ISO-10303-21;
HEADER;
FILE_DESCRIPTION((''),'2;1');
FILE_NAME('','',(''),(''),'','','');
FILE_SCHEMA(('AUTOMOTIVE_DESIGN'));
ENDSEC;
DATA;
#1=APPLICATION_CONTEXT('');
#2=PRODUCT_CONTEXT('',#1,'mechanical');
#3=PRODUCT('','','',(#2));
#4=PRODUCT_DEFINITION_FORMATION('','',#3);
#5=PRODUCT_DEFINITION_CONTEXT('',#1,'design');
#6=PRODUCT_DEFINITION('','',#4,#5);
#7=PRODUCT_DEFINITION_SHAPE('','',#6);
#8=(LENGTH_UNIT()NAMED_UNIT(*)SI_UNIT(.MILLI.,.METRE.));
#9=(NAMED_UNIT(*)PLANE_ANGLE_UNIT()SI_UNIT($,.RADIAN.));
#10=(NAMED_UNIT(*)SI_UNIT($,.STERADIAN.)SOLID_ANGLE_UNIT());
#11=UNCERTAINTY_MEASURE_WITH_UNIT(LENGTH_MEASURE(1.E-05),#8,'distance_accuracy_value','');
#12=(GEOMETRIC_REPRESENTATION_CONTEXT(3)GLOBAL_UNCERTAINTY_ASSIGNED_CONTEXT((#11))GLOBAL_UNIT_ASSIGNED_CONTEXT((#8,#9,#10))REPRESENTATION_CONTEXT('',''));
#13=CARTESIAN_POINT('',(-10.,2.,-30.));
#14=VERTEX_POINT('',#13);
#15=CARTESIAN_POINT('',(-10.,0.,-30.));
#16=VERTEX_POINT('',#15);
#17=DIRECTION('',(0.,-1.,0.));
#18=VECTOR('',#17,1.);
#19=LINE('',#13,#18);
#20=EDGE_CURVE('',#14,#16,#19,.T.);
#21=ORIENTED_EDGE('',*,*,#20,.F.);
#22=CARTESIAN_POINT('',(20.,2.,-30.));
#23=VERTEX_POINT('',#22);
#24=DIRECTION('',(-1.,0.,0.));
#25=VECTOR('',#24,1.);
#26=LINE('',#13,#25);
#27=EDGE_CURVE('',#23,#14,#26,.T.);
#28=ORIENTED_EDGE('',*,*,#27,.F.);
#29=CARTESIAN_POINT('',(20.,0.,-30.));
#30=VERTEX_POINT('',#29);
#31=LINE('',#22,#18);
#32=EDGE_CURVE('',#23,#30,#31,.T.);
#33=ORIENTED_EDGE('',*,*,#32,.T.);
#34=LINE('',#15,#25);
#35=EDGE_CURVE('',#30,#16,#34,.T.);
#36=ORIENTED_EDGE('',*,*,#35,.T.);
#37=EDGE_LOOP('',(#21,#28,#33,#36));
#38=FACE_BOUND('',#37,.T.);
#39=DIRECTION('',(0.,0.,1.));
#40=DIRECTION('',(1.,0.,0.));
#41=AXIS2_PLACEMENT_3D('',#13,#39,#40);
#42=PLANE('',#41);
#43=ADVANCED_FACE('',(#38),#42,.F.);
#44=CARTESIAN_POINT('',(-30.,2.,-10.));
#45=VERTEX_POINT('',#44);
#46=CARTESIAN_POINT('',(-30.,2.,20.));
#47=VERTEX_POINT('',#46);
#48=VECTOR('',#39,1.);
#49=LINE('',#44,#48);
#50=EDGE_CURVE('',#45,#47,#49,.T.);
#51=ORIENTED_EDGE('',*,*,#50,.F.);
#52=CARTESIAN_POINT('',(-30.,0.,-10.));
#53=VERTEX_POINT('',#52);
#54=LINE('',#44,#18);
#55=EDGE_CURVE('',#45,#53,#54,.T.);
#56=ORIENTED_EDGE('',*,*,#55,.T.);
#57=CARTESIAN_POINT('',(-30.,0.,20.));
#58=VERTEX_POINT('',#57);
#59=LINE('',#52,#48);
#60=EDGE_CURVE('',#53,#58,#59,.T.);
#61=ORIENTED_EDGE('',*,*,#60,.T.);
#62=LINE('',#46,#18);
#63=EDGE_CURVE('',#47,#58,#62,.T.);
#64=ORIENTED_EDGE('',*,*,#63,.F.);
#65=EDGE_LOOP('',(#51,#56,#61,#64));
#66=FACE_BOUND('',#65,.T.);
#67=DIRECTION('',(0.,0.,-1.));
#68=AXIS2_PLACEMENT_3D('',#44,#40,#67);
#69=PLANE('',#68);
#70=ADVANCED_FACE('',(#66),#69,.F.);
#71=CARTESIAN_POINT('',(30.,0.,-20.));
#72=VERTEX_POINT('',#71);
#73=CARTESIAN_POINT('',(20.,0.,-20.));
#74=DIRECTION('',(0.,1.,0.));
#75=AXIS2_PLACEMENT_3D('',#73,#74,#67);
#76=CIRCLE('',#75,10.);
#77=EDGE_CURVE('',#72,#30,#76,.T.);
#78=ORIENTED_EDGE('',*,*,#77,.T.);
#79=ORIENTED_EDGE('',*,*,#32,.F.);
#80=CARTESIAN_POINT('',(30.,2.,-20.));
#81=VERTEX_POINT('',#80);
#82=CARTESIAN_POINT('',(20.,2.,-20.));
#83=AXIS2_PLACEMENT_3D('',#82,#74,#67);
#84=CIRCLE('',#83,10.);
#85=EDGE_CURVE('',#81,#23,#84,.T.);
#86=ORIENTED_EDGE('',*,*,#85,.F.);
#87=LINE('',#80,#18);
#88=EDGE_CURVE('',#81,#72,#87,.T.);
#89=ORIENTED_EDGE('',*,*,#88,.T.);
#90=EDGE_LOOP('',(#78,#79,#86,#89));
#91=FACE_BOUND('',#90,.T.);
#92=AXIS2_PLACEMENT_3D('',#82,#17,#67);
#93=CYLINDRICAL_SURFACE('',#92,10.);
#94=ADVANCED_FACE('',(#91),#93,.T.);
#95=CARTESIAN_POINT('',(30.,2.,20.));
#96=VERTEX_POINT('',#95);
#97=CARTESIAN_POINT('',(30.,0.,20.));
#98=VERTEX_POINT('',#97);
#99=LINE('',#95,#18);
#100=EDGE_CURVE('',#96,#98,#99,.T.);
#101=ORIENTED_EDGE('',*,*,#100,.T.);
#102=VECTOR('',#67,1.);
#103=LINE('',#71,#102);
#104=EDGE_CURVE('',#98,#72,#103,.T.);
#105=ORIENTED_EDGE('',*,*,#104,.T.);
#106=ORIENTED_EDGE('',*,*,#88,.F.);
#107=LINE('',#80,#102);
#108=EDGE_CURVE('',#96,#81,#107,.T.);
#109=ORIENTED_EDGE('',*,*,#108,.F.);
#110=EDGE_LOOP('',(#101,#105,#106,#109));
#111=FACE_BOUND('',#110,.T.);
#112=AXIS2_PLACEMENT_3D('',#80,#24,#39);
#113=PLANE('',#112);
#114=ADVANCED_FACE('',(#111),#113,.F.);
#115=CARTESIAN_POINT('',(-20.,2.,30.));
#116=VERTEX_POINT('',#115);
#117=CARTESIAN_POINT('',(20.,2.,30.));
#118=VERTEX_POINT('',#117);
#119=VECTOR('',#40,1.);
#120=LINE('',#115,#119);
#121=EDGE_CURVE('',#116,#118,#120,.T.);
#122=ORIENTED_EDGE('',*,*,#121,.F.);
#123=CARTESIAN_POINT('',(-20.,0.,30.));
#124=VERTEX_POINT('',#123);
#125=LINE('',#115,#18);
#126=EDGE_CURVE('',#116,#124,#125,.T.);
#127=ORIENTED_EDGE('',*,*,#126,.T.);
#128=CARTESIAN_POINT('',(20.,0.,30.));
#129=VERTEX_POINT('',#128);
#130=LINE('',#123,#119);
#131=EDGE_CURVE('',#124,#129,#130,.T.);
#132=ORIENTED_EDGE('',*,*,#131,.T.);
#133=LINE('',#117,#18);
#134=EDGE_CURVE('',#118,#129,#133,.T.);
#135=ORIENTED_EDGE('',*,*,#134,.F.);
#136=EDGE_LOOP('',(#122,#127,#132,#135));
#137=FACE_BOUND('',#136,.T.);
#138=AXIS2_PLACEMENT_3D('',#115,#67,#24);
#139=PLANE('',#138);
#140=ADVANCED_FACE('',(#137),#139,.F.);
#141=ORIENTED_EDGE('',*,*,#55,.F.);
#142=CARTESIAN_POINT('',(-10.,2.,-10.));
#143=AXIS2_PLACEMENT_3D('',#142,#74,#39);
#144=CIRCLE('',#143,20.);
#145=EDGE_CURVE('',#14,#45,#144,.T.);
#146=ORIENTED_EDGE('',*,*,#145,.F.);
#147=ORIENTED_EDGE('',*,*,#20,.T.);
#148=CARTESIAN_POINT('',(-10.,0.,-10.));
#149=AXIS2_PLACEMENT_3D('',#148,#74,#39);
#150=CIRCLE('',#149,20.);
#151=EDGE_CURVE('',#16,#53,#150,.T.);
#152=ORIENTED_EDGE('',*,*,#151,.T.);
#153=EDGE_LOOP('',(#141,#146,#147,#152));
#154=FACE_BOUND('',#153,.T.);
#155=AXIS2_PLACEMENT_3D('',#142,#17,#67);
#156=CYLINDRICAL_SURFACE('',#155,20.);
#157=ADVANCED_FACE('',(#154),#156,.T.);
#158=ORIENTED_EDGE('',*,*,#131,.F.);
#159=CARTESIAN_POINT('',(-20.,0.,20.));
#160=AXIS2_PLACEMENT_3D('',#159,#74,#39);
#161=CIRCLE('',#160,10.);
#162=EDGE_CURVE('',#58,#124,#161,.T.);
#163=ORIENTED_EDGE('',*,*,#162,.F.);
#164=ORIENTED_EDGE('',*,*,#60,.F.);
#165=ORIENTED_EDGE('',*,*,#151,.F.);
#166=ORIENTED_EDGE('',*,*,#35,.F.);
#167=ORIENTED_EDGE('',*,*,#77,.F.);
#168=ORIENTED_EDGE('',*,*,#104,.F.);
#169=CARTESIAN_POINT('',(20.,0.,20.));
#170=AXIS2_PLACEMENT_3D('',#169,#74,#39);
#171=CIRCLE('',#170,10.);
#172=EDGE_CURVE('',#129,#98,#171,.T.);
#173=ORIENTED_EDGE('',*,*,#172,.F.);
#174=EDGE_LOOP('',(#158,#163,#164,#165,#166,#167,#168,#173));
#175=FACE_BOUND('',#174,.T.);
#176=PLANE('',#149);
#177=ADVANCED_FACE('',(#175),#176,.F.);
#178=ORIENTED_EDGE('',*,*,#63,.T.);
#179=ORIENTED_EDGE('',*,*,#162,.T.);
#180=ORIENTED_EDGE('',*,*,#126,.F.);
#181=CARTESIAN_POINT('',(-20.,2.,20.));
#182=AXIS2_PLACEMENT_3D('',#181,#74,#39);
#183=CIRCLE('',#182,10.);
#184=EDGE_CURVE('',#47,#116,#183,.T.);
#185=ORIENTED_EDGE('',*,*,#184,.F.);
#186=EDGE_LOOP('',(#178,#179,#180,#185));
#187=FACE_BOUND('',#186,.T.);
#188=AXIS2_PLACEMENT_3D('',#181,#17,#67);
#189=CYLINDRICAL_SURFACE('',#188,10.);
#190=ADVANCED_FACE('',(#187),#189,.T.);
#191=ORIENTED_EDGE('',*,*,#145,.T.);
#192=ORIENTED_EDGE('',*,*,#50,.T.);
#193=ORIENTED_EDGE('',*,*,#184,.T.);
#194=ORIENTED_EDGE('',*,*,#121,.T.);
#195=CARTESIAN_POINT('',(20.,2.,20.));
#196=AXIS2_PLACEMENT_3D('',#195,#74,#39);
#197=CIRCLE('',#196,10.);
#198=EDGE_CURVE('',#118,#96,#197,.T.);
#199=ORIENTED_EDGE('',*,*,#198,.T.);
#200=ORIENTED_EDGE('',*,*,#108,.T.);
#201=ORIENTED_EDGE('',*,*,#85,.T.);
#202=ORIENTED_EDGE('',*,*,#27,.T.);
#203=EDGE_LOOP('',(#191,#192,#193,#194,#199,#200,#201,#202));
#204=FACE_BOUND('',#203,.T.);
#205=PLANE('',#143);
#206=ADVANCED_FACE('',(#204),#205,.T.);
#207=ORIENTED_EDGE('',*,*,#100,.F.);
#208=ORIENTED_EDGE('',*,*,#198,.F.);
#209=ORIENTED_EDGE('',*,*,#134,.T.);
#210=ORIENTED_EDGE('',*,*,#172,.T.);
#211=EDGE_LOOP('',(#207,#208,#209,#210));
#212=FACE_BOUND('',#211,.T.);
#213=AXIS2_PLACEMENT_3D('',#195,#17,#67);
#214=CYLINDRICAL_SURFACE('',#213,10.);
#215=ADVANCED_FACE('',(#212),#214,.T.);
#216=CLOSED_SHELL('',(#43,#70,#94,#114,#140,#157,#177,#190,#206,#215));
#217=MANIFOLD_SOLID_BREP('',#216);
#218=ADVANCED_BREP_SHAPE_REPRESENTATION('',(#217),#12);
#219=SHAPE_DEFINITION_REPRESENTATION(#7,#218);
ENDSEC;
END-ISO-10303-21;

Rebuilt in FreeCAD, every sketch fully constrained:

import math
import FreeCAD as App
import Part
import Sketcher
from FreeCAD import Vector

doc = App.newDocument("Part")
body = doc.addObject("PartDesign::Body", "Body")

# Sketch on XZ plane
sketch1 = body.newObject("Sketcher::SketchObject", "Sketch")
sketch1.AttachmentSupport = (doc.getObject("XZ_Plane"), [""])
sketch1.MapMode = "FlatFace"
sketch1.addGeometry([
    Part.LineSegment(Vector(20, -30, 0), Vector(-10, -30, 0)),  # 0
    Part.ArcOfCircle(Part.Circle(Vector(-10, -10, 0), Vector(0, 0, 1), 20), math.radians(180), math.radians(270)),  # 1
    Part.LineSegment(Vector(-30, -10, 0), Vector(-30, 20, 0)),  # 2
    Part.ArcOfCircle(Part.Circle(Vector(-20, 20, 0), Vector(0, 0, 1), 10), math.radians(90), math.radians(180)),  # 3
    Part.LineSegment(Vector(-20, 30, 0), Vector(20, 30, 0)),  # 4
    Part.ArcOfCircle(Part.Circle(Vector(20, 20, 0), Vector(0, 0, 1), 10), math.radians(0), math.radians(90)),  # 5
    Part.LineSegment(Vector(30, 20, 0), Vector(30, -20, 0)),  # 6
    Part.ArcOfCircle(Part.Circle(Vector(20, -20, 0), Vector(0, 0, 1), 10), math.radians(-90), math.radians(0)),  # 7
], False)
sketch1.addConstraint([
    Sketcher.Constraint("Tangent", 0, 2, 1, 2),
    Sketcher.Constraint("Tangent", 1, 1, 2, 1),
    Sketcher.Constraint("Tangent", 2, 2, 3, 2),
    Sketcher.Constraint("Tangent", 3, 1, 4, 1),
    Sketcher.Constraint("Tangent", 4, 2, 5, 2),
    Sketcher.Constraint("Tangent", 5, 1, 6, 1),
    Sketcher.Constraint("Tangent", 6, 2, 7, 2),
    Sketcher.Constraint("Tangent", 7, 1, 0, 1),
    Sketcher.Constraint("Horizontal", 0),
    Sketcher.Constraint("Vertical", 2),
    Sketcher.Constraint("Horizontal", 4),
    Sketcher.Constraint("Vertical", 6),
    Sketcher.Constraint("Equal", 3, 5),
    Sketcher.Constraint("Equal", 5, 7),
    Sketcher.Constraint("Symmetric", 3, 3, 7, 3, -1, 1),
    Sketcher.Constraint("Equal", 0, 2),
    Sketcher.Constraint("Radius", 1, 20.0),
    Sketcher.Constraint("Radius", 3, 10.0),
    Sketcher.Constraint("DistanceX", 0, 2, 0, 1, 30.0),
])
pad1 = body.newObject("PartDesign::Pad", "Pad")
pad1.Profile = sketch1
pad1.Length = 2
pad1.Reversed = True

doc.recompute()
